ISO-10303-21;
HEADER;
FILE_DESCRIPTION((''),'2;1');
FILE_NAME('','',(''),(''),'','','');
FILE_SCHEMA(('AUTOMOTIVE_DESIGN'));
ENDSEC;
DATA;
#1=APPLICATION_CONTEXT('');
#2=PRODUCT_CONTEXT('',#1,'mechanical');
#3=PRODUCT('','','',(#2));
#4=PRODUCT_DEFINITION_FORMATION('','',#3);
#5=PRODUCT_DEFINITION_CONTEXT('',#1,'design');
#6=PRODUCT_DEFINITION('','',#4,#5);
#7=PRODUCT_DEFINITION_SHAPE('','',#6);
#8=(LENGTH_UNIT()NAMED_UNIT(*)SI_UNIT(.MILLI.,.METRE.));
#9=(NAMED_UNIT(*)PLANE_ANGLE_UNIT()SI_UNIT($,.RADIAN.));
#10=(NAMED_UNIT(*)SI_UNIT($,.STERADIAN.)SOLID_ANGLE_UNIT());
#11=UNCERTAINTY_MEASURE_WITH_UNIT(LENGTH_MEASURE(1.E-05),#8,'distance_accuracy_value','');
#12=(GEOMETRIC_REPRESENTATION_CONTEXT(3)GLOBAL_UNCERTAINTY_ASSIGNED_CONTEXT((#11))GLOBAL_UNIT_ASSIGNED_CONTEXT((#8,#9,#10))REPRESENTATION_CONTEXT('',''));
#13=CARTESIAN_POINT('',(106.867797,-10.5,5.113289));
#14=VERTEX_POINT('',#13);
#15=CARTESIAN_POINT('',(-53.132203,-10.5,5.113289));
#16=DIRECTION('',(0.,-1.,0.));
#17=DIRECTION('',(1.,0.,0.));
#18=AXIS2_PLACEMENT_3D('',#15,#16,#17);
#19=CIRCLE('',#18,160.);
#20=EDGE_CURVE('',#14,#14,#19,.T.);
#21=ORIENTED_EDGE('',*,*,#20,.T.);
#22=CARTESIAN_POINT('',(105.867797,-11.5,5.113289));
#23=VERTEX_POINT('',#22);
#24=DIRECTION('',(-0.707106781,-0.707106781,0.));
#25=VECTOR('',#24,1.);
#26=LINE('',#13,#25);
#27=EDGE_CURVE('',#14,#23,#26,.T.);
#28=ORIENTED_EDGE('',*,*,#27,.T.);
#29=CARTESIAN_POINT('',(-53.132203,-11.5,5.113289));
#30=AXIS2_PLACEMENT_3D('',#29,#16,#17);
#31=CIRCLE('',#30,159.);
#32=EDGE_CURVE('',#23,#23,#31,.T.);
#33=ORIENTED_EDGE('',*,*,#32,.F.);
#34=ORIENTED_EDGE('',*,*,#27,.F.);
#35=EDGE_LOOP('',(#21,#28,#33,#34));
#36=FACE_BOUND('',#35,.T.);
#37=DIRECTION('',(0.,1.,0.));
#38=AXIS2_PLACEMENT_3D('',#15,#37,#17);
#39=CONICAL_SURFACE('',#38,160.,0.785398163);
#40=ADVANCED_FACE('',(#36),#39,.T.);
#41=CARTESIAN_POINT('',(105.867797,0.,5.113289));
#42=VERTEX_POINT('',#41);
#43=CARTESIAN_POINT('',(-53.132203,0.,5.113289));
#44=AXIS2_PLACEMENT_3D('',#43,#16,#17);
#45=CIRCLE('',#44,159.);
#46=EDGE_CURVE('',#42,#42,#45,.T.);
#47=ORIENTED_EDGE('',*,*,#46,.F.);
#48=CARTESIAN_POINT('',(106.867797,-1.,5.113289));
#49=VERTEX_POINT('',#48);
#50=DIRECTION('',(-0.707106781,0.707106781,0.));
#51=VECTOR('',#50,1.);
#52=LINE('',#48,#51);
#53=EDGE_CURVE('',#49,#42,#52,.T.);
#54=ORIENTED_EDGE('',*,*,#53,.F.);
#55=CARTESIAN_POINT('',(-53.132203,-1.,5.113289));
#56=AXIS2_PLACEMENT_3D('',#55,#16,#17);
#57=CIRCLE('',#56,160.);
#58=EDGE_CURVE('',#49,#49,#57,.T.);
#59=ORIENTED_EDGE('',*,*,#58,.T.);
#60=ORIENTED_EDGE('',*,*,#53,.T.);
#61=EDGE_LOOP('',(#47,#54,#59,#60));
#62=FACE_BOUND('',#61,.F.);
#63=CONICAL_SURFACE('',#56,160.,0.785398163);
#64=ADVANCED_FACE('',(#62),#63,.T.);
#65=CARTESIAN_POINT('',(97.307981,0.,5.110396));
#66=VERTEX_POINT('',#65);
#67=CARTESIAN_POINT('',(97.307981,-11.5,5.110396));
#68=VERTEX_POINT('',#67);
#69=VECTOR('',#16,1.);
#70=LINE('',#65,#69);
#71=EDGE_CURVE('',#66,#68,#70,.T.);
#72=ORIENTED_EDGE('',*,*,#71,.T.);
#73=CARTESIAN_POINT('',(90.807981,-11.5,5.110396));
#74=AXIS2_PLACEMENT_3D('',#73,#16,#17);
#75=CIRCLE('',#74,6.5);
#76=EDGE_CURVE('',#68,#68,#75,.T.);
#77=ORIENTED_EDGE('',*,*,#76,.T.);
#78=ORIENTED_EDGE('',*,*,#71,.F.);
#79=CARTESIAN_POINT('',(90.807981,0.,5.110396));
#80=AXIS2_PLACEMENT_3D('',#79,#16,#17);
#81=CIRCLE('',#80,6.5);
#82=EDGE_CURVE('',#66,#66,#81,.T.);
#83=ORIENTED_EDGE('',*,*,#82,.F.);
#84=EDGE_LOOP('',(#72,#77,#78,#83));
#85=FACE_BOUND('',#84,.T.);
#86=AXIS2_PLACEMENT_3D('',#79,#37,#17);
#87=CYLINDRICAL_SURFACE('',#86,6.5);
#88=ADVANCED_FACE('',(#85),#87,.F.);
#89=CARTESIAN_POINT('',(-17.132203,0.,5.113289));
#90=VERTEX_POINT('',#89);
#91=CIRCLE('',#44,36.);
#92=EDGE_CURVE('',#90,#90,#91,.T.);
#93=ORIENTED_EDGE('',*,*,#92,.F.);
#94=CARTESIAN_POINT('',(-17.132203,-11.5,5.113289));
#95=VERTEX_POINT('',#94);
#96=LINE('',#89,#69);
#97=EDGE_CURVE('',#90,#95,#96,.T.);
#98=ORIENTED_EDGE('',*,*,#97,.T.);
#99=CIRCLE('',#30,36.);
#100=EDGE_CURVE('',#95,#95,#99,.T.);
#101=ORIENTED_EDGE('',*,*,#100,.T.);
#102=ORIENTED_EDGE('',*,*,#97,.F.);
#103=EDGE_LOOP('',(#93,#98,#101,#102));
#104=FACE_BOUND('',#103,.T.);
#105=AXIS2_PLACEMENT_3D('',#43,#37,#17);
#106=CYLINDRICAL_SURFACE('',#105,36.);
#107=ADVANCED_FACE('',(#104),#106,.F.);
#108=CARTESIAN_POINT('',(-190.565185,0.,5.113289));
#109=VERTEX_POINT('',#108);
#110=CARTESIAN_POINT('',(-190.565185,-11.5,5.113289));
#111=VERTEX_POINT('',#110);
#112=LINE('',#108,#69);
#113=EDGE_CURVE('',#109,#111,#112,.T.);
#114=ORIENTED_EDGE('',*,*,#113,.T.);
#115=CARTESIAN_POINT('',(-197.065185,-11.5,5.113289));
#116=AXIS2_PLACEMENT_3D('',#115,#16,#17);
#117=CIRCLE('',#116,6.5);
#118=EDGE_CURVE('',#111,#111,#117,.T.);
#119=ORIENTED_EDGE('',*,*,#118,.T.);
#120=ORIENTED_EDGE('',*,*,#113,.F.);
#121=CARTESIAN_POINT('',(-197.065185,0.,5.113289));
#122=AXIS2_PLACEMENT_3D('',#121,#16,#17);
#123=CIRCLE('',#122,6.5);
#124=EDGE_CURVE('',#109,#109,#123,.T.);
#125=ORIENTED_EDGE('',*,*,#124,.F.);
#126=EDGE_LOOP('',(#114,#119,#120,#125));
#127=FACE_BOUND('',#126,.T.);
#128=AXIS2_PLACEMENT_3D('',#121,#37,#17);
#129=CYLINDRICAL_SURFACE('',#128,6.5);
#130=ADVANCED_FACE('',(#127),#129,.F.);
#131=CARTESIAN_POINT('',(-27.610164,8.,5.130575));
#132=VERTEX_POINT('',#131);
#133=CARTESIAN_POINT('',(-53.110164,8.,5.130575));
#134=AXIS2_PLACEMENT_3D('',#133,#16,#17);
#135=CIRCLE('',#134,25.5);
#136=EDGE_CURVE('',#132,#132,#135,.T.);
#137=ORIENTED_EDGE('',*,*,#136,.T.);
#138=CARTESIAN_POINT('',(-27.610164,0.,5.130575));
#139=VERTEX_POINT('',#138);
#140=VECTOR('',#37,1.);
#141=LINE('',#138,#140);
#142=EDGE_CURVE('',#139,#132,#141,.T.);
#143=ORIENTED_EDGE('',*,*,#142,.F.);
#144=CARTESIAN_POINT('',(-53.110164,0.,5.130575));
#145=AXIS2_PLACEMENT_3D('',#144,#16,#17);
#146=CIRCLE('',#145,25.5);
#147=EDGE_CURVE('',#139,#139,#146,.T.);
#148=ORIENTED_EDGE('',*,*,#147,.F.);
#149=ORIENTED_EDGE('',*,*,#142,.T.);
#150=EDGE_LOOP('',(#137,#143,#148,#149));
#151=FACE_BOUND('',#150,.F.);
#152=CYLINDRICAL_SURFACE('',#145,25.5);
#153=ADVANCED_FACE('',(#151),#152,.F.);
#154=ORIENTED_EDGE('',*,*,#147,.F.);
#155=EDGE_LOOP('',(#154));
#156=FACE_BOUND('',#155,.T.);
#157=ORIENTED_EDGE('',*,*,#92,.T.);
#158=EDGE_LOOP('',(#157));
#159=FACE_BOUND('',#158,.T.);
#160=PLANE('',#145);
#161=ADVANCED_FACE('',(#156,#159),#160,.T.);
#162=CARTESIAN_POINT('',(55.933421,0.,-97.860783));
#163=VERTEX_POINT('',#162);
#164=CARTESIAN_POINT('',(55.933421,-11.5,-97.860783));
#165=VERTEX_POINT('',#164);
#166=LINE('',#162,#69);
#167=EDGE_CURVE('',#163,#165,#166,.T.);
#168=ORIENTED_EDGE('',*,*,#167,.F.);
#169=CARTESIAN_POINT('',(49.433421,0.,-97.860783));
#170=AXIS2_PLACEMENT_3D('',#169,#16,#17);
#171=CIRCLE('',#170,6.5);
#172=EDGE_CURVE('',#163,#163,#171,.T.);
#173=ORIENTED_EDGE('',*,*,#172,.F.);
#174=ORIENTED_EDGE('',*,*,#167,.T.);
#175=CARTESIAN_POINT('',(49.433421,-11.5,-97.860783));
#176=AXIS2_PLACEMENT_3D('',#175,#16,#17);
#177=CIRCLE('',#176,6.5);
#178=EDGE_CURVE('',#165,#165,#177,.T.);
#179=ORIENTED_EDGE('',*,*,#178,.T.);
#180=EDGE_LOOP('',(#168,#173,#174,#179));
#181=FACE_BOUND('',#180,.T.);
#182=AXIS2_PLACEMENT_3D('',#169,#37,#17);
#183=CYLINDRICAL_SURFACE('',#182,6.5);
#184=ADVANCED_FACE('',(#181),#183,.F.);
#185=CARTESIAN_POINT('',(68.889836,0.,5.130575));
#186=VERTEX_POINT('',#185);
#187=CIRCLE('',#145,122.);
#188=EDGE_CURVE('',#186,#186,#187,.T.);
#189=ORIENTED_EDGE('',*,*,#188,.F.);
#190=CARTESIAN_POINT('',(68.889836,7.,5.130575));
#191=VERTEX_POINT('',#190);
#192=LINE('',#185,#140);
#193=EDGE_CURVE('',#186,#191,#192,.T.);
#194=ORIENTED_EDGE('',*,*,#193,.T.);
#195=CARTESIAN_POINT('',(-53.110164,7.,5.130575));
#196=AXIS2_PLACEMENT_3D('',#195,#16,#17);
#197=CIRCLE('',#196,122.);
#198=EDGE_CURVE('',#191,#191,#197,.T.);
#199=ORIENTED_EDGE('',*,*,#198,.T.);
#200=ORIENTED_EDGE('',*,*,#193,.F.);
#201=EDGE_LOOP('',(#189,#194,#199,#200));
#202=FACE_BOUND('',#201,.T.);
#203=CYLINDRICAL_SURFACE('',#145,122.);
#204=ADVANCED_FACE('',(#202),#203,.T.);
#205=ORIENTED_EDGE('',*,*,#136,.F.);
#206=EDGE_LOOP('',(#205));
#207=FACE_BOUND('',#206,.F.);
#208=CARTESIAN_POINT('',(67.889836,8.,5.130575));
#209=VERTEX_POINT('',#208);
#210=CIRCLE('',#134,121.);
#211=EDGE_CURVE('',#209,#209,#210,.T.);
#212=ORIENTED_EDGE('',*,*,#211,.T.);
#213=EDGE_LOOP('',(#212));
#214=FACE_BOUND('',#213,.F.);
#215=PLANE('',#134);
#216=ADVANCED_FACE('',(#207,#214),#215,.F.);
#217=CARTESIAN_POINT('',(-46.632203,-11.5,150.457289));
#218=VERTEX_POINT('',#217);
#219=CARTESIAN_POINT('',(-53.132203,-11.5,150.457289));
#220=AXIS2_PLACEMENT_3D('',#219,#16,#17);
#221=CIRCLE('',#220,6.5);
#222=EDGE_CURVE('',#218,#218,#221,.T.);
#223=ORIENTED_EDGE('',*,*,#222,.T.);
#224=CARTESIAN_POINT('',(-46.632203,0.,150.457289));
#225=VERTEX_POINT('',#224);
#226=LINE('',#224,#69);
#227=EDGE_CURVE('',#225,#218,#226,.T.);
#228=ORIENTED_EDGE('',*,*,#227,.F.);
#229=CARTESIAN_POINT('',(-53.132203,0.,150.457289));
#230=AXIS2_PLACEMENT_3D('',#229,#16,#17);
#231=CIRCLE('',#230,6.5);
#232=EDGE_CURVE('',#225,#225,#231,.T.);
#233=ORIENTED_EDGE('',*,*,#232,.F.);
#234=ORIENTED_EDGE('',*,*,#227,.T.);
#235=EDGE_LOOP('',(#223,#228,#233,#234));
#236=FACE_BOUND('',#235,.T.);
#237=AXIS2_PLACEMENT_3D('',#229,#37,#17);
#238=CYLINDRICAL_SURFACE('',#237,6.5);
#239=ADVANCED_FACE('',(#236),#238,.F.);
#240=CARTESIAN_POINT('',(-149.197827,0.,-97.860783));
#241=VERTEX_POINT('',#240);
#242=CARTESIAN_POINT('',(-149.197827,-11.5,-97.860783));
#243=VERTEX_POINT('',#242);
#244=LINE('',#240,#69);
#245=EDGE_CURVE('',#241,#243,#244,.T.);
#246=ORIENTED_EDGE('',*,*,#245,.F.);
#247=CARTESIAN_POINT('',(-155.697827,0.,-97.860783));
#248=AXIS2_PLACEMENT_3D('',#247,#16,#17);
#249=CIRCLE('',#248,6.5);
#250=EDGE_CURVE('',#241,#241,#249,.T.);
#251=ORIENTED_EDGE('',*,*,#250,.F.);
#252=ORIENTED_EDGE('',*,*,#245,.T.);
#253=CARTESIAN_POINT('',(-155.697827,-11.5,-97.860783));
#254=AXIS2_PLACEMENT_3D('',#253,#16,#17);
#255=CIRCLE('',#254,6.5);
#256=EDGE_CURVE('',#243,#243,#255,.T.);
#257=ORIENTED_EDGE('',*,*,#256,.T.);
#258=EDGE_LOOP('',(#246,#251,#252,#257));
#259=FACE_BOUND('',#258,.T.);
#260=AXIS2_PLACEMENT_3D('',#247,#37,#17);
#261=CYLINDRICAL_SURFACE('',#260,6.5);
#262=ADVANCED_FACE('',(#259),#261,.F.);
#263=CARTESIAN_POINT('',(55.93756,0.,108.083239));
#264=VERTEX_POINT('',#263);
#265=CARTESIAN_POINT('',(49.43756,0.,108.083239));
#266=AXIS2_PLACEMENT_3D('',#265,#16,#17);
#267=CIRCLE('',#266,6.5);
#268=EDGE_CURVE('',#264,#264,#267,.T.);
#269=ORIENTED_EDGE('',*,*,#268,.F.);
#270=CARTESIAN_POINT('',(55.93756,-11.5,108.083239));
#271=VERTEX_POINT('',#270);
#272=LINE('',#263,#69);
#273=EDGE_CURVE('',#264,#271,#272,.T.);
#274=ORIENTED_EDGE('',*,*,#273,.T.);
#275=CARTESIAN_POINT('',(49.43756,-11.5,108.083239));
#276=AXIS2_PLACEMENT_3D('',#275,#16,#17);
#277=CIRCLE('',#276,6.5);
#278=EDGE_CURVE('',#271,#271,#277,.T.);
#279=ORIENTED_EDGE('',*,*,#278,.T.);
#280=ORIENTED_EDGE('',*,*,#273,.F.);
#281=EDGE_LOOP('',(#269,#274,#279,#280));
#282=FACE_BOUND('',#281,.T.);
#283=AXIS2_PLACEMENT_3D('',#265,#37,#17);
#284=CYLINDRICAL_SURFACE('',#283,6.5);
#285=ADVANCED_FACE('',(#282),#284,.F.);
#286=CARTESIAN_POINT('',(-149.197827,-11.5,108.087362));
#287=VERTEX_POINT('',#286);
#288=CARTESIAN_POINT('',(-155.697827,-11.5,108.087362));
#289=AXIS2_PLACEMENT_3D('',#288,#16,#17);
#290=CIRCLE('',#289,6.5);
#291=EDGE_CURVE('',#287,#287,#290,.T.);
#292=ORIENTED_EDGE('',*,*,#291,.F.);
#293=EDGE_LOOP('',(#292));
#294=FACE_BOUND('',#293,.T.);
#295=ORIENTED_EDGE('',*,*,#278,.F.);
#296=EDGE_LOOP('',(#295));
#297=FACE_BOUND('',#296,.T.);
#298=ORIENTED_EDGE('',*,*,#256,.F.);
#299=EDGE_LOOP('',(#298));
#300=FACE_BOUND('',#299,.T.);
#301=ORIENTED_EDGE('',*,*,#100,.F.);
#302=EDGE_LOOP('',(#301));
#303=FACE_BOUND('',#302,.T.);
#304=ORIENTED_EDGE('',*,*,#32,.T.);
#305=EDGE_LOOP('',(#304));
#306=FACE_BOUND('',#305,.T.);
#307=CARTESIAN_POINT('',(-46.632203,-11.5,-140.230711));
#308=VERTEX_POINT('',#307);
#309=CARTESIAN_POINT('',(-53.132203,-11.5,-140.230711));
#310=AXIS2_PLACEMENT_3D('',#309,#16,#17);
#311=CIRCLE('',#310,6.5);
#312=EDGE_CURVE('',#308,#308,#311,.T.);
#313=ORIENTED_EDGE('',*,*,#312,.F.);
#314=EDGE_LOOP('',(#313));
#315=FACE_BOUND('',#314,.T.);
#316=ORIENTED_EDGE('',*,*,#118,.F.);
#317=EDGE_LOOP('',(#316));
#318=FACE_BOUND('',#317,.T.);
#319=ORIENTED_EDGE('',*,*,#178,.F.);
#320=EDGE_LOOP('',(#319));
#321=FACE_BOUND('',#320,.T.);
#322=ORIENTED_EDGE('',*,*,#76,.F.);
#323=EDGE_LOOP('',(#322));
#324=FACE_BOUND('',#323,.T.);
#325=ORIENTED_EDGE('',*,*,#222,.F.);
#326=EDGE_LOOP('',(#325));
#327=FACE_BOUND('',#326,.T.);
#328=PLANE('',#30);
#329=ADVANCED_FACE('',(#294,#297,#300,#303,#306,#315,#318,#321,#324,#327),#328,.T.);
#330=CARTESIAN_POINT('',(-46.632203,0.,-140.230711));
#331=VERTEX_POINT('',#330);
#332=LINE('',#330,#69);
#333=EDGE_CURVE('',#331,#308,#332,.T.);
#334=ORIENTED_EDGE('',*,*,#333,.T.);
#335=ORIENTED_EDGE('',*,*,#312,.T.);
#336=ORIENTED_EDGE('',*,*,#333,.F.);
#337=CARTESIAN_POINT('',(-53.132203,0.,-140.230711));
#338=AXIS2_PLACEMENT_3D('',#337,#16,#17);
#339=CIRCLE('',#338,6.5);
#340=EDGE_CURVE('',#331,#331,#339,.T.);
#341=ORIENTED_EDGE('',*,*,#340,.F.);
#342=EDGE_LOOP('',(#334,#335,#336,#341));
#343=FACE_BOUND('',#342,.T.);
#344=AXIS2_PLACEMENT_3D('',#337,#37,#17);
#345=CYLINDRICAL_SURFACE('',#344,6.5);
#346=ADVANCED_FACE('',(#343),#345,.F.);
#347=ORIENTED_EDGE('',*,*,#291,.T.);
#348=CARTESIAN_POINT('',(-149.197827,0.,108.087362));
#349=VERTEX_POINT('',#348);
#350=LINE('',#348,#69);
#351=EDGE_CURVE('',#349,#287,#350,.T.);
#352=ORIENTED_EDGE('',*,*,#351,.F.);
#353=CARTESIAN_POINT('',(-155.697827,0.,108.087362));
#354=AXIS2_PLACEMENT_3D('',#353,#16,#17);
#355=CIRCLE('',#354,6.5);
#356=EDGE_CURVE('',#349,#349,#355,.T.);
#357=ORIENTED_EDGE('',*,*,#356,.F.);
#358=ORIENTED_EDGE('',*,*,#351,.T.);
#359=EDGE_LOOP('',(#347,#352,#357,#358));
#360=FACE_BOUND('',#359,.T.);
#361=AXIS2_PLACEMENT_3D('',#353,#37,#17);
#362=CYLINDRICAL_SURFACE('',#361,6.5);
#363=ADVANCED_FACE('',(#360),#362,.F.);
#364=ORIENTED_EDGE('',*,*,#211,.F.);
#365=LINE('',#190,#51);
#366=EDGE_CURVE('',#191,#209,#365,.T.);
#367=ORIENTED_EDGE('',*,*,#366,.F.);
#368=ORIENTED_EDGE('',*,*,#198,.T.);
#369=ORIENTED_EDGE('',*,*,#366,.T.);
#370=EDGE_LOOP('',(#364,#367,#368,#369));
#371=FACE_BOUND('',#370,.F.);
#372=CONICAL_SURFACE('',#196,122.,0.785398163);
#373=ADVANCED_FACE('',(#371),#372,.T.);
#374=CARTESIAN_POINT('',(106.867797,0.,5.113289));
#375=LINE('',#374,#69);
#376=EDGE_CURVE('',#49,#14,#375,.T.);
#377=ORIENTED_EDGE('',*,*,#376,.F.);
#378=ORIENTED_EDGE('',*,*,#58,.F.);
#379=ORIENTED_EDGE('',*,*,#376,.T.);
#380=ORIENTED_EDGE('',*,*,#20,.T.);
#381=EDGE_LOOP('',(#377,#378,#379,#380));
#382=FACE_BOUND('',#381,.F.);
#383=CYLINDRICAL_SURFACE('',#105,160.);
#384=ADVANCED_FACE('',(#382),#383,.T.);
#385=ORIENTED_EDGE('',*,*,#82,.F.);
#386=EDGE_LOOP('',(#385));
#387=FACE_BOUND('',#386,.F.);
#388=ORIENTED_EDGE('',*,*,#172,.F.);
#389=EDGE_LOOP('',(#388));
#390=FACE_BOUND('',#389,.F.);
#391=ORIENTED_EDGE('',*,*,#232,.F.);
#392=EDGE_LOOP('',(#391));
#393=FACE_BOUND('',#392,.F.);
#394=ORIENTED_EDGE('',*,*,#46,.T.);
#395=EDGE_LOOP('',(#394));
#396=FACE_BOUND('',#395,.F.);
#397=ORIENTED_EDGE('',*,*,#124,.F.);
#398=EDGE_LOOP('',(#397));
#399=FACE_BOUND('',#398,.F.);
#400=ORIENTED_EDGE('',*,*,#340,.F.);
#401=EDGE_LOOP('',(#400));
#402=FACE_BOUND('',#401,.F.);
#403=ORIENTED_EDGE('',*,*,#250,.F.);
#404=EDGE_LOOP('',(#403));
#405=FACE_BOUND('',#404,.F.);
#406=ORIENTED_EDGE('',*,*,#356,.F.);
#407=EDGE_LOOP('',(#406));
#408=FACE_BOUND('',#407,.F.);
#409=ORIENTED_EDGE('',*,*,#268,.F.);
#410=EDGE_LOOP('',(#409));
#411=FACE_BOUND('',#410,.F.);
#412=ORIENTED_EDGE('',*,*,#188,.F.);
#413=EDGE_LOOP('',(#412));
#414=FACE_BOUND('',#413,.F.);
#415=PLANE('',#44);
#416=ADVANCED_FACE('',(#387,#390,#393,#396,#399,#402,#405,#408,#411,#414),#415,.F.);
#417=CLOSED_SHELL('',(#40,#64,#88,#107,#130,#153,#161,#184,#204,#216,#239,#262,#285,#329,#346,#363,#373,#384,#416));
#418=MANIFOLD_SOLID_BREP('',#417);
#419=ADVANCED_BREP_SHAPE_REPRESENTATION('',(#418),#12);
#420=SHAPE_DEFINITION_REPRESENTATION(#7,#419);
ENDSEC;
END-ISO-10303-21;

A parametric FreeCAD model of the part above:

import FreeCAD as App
import Part
import Sketcher

V = App.Vector
Q = App.Units.Quantity


def edges_at(feature, points):
    """Names of the edges that pass closest to the given points."""
    edges = feature.Shape.Edges
    near = lambda p: min(range(len(edges)), key=lambda i: edges[i].distToShape(Part.Vertex(*p))[0])
    return sorted({f"Edge{near(p) + 1}" for p in points})

doc = App.newDocument("Part")
body = doc.addObject("PartDesign::Body", "Body")

sketch1 = doc.addObject("Sketcher::SketchObject", "Sketch")
body.addObject(sketch1)
sketch1.AttachmentSupport = (doc.XZ_Plane, [""])
sketch1.MapMode = "FlatFace"
sketch1.addGeometry([
    Part.Circle(V(-53.132203, 5.113289, 0), V(0, 0, 1), 160),
    Part.Circle(V(-155.697827, -97.860783, 0), V(0, 0, 1), 6.5),
    Part.Circle(V(-53.132203, -140.230711, 0), V(0, 0, 1), 6.5),
    Part.Circle(V(49.433421, -97.860783, 0), V(0, 0, 1), 6.5),
    Part.Circle(V(90.807981, 5.110396, 0), V(0, 0, 1), 6.5),
    Part.Circle(V(-197.065185, 5.113289, 0), V(0, 0, 1), 6.5),
    Part.Circle(V(-53.132203, 5.113289, 0), V(0, 0, 1), 36),
    Part.Circle(V(-155.697827, 108.087362, 0), V(0, 0, 1), 6.5),
    Part.Circle(V(-53.132203, 150.457289, 0), V(0, 0, 1), 6.5),
    Part.Circle(V(49.43756, 108.083239, 0), V(0, 0, 1), 6.5),
], False)
sketch1.addConstraint([
    Sketcher.Constraint("Coincident", 6, 3, 0, 3),
    Sketcher.Constraint("Equal", 1, 2),
    Sketcher.Constraint("Equal", 2, 3),
    Sketcher.Constraint("Equal", 3, 4),
    Sketcher.Constraint("Equal", 4, 5),
    Sketcher.Constraint("Equal", 5, 7),
    Sketcher.Constraint("Equal", 7, 8),
    Sketcher.Constraint("Equal", 8, 9),
    Sketcher.Constraint("Horizontal", 1, 3, 3, 3),
    Sketcher.Constraint("Horizontal", 0, 3, 5, 3),
    Sketcher.Constraint("Vertical", 0, 3, 2, 3),
    Sketcher.Constraint("Vertical", 1, 3, 7, 3),
    Sketcher.Constraint("Vertical", 6, 3, 8, 3),
    Sketcher.Constraint("Diameter", 0, Q("320 mm")),
    Sketcher.Constraint("Diameter", 1, Q("13 mm")),
    Sketcher.Constraint("Diameter", 6, Q("72 mm")),
    Sketcher.Constraint("DistanceY", 2, 3, 0, 3, Q("145.344 mm")),
    Sketcher.Constraint("DistanceY", 0, 3, 8, 3, Q("145.344 mm")),
    Sketcher.Constraint("DistanceY", -1, 1, 0, 3, Q("5.113289 mm")),
    Sketcher.Constraint("DistanceX", -1, 1, 3, 3, Q("49.433421 mm")),
    Sketcher.Constraint("DistanceX", -1, 1, 4, 3, Q("90.807981 mm")),
    Sketcher.Constraint("DistanceY", -1, 1, 7, 3, Q("108.087362 mm")),
    Sketcher.Constraint("DistanceX", -1, 1, 9, 3, Q("49.43756 mm")),
    Sketcher.Constraint("DistanceY", -1, 1, 9, 3, Q("108.083239 mm")),
    Sketcher.Constraint("DistanceY", 3, 3, 4, 3, Q("102.971179 mm")),
    Sketcher.Constraint("DistanceX", 5, 3, 1, 3, Q("41.367359 mm")),
    Sketcher.Constraint("DistanceX", 0, 3, -1, 1, Q("53.132203 mm")),
    Sketcher.Constraint("DistanceX", 1, 3, -1, 1, Q("155.697827 mm")),
    Sketcher.Constraint("DistanceY", 1, 3, -1, 1, Q("97.860783 mm")),
])
pad1 = doc.addObject("PartDesign::Pad", "Pad")
body.addObject(pad1)
pad1.Profile = sketch1
pad1.Length = 11.5
doc.recompute()

chamfer = doc.addObject("PartDesign::Chamfer", "Chamfer")
body.addObject(chamfer)
chamfer.Base = (pad1, edges_at(pad1, [(-213.132, 0, 5.113), (-213.132, -11.5, 5.113)]))
chamfer.Size = 1

sketch2 = doc.addObject("Sketcher::SketchObject", "Sketch001")
body.addObject(sketch2)
sketch2.AttachmentSupport = (doc.XZ_Plane, [""])
sketch2.MapMode = "FlatFace"
sketch2.addGeometry([
    Part.Circle(V(-53.110164, 5.130575, 0), V(0, 0, 1), 122),
    Part.Circle(V(-53.110164, 5.130575, 0), V(0, 0, 1), 25.5),
], False)
sketch2.addConstraint([
    Sketcher.Constraint("Coincident", 1, 3, 0, 3),
    Sketcher.Constraint("Diameter", 0, Q("244 mm")),
    Sketcher.Constraint("Diameter", 1, Q("51 mm")),
    Sketcher.Constraint("DistanceX", 0, 3, -1, 1, Q("53.110164 mm")),
    Sketcher.Constraint("DistanceY", -1, 1, 0, 3, Q("5.130575 mm")),
])
pad2 = doc.addObject("PartDesign::Pad", "Pad001")
body.addObject(pad2)
pad2.Profile = sketch2
pad2.Length = 8
pad2.Reversed = True
doc.recompute()

chamfer2 = doc.addObject("PartDesign::Chamfer", "Chamfer001")
body.addObject(chamfer2)
chamfer2.Base = (pad2, edges_at(pad2, [(-175.11, 8, 5.131)]))
chamfer2.Size = 1

doc.recompute()
